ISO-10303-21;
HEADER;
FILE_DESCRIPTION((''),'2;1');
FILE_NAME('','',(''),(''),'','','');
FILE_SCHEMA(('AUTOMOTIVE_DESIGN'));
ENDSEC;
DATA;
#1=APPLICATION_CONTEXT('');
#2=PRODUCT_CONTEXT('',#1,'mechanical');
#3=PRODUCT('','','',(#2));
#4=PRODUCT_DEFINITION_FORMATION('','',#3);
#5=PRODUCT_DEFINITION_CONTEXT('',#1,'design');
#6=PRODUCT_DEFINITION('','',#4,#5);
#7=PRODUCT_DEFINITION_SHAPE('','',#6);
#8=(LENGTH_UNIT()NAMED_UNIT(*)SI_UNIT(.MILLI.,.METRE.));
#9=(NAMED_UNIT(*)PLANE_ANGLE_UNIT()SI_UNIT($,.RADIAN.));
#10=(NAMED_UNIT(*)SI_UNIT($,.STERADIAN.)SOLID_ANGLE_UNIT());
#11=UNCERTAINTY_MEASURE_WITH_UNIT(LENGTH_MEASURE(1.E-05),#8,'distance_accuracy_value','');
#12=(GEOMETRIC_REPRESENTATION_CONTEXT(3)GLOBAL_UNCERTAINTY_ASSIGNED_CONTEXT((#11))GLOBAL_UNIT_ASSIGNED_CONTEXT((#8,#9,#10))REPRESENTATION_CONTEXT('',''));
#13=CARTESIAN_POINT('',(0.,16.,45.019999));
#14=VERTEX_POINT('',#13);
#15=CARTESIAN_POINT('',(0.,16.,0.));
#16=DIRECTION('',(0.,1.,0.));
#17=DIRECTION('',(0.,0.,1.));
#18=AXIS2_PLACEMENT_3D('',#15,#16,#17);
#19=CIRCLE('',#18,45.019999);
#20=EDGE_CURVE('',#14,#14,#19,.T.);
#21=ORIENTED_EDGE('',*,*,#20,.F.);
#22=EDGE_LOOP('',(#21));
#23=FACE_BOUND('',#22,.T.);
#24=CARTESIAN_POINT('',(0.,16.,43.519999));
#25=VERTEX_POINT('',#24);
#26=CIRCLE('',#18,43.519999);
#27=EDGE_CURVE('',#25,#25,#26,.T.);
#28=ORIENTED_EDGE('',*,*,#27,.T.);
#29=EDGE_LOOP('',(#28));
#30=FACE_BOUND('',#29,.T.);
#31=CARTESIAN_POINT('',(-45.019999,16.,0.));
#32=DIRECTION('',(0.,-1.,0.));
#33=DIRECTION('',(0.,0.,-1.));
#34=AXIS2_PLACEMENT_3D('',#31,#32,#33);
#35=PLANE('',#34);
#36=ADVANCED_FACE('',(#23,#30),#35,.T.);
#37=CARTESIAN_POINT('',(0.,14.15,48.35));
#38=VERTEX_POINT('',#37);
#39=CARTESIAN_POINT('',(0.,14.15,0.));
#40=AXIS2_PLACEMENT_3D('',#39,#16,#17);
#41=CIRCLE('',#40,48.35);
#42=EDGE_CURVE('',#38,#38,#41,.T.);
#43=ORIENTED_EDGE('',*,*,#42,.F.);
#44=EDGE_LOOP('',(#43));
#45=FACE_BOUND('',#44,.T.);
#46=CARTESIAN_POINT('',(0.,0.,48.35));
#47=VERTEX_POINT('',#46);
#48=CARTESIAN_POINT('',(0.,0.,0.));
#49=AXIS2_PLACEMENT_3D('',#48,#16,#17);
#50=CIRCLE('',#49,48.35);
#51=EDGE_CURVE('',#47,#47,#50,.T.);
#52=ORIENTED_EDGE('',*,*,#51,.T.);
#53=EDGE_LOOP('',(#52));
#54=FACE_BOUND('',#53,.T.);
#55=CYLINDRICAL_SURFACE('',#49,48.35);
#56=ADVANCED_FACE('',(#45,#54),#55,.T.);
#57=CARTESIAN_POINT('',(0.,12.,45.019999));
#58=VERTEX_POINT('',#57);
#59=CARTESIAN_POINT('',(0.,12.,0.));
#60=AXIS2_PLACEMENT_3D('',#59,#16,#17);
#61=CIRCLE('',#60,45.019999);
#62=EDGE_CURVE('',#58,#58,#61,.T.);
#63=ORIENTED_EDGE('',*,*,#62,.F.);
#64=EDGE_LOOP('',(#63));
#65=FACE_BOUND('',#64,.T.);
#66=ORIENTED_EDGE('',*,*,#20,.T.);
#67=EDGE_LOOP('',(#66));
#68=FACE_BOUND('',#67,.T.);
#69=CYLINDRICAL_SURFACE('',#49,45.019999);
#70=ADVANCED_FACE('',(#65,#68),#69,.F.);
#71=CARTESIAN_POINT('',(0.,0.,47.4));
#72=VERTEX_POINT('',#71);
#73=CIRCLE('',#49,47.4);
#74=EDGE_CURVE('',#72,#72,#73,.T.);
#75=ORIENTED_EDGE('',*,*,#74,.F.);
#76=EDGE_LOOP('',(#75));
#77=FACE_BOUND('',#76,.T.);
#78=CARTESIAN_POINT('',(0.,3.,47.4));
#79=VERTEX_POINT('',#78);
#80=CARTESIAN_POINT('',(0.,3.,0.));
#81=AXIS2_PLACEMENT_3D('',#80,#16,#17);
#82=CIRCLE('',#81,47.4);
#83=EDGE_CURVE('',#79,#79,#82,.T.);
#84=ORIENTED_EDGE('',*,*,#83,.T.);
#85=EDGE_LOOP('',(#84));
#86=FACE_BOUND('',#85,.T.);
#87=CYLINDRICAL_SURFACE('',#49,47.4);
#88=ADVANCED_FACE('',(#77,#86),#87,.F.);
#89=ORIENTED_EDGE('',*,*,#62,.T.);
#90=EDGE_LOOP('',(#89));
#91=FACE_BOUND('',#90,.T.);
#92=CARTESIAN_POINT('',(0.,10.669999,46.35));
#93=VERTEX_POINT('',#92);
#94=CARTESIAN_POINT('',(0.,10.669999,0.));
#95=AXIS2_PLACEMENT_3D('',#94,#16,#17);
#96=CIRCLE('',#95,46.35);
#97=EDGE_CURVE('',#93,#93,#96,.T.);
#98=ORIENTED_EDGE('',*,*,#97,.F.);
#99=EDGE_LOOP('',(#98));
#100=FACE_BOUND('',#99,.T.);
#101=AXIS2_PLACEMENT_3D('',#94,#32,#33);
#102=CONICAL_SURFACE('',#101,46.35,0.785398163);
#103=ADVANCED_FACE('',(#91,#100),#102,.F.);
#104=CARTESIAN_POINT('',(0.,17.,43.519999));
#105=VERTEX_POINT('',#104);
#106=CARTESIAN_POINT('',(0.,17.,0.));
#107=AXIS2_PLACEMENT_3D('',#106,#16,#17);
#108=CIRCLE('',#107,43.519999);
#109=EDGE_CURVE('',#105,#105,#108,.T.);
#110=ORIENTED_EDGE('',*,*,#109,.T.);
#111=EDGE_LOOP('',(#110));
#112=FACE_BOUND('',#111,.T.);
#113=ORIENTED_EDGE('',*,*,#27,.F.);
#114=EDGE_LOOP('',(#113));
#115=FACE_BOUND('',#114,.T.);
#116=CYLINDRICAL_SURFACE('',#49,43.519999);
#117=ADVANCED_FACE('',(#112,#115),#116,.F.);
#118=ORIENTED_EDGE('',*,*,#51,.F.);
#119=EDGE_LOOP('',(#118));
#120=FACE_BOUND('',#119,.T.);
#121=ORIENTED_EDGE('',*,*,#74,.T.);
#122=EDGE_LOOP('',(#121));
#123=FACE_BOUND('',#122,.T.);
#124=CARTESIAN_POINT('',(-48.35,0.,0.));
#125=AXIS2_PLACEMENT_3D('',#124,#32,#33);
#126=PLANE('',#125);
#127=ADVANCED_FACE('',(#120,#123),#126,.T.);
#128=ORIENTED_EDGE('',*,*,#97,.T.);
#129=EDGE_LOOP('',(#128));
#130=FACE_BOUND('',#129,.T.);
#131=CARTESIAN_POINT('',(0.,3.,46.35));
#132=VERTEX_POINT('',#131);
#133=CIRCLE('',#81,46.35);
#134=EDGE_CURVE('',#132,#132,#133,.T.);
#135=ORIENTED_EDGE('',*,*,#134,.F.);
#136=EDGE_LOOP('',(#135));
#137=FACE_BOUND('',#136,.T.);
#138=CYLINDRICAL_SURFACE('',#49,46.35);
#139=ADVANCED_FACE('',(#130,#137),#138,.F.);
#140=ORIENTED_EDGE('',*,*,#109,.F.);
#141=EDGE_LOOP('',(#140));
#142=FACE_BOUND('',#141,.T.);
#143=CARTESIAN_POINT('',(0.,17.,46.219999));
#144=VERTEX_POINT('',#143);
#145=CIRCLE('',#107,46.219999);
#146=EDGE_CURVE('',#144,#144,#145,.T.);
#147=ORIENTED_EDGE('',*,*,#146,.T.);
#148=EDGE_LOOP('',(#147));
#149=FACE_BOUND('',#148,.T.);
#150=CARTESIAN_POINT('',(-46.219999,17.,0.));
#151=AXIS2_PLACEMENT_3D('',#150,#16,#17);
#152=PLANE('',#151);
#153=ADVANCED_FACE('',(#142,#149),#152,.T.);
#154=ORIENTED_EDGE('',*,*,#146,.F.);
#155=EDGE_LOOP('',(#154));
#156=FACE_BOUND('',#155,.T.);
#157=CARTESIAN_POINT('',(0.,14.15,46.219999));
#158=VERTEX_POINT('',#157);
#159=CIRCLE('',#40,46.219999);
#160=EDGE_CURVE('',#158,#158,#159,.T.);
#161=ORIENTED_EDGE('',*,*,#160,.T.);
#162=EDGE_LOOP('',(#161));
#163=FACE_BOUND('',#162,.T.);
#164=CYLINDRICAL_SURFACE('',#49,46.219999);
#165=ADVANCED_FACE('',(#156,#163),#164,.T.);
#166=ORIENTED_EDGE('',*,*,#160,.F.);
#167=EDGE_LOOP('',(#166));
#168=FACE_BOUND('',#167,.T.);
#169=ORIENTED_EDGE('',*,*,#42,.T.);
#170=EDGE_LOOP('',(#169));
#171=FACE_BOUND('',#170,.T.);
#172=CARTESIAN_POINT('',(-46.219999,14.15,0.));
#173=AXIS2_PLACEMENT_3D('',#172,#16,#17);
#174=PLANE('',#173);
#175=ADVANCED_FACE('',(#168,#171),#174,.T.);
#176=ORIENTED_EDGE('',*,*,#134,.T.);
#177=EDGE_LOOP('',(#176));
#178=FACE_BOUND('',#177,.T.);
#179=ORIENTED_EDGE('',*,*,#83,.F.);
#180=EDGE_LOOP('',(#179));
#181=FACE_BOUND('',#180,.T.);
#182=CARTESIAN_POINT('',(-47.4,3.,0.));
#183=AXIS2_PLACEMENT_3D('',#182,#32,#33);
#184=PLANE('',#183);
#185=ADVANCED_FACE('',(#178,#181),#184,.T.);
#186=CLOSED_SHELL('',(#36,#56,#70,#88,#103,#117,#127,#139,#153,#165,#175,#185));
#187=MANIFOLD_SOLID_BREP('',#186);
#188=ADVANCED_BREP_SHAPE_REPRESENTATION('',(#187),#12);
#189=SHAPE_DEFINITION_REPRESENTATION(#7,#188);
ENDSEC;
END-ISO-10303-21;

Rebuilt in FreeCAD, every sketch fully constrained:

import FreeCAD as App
import Part
import Sketcher
from FreeCAD import Vector
Q = App.Units.Quantity


def add_polygon(sketch, points):
    """Adds a closed chain of lines whose ends are joined by coincident constraints."""
    first, n = sketch.GeometryCount, len(points)
    for a, b in zip(points, points[1:] + points[:1]):
        sketch.addGeometry(Part.LineSegment(App.Vector(*a, 0), App.Vector(*b, 0)), False)
    for i in range(n):
        sketch.addConstraint(Sketcher.Constraint("Coincident", first + i, 2, first + (i + 1) % n, 1))

doc = App.newDocument("Part")
params = doc.addObject("Spreadsheet::Sheet", "Params")
for row, (alias, value) in enumerate([
    ("sketch1_height", "3 mm"),
    ("sketch1_height2", "4 mm"),
    ("sketch1_height3", "1 mm"),
    ("sketch1_width", "1.5 mm"),
    ("sketch1_width2", "2.7 mm"),
    ("revolution_angle", "360 deg"),
], start=1):
    params.set(f"A{row}", alias)
    params.set(f"B{row}", "=" + value)
    params.setAlias(f"B{row}", alias)

body = doc.addObject("PartDesign::Body", "Body")

sketch1 = doc.addObject("Sketcher::SketchObject", "Sketch")
body.addObject(sketch1)
sketch1.AttachmentSupport = (doc.XY_Plane, [""])
sketch1.MapMode = "FlatFace"
add_polygon(sketch1, [(-48.4, 14.2), (-48.4, 0), (-47.4, 0), (-47.4, 3), (-46.4, 3), (-46.4, 10.7), (-45, 12), (-45, 16), (-43.5, 16), (-43.5, 17), (-46.2, 17), (-46.2, 14.2)])
sketch1.addConstraint(Sketcher.Constraint("Vertical", 0))
sketch1.addConstraint(Sketcher.Constraint("Horizontal", 1))
sketch1.addConstraint(Sketcher.Constraint("Vertical", 2))
sketch1.addConstraint(Sketcher.Constraint("Horizontal", 3))
sketch1.addConstraint(Sketcher.Constraint("Vertical", 4))
sketch1.addConstraint(Sketcher.Constraint("Vertical", 6))
sketch1.addConstraint(Sketcher.Constraint("Horizontal", 7))
sketch1.addConstraint(Sketcher.Constraint("Vertical", 8))
sketch1.addConstraint(Sketcher.Constraint("Horizontal", 9))
sketch1.addConstraint(Sketcher.Constraint("Vertical", 10))
sketch1.addConstraint(Sketcher.Constraint("Horizontal", 11))
sketch1.addConstraint(Sketcher.Constraint("PointOnObject", 0, 2, -1))
sketch1.addConstraint(Sketcher.Constraint("DistanceY", 2, 1, 2, 2, Q("3 mm")))
sketch1.addConstraint(Sketcher.Constraint("DistanceY", 6, 1, 6, 2, Q("4 mm")))
sketch1.addConstraint(Sketcher.Constraint("DistanceY", 8, 1, 8, 2, Q("1 mm")))
sketch1.addConstraint(Sketcher.Constraint("Angle", 5, Q("45 deg")))
sketch1.addConstraint(Sketcher.Constraint("DistanceX", 7, 1, 7, 2, Q("1.5 mm")))
sketch1.addConstraint(Sketcher.Constraint("DistanceX", 9, 2, 9, 1, Q("2.7 mm")))
sketch1.addConstraint(Sketcher.Constraint("DistanceY", -1, 1, 5, 2, Q("12 mm")))
sketch1.addConstraint(Sketcher.Constraint("DistanceX", 0, 2, 3, 2, Q("2 mm")))
sketch1.addConstraint(Sketcher.Constraint("DistanceX", 1, 1, 1, 2, Q("0.95 mm")))
sketch1.addConstraint(Sketcher.Constraint("DistanceX", 11, 2, 11, 1, Q("2.130001 mm")))
sketch1.addConstraint(Sketcher.Constraint("DistanceY", 0, 2, 0, 1, Q("14.15 mm")))
sketch1.addConstraint(Sketcher.Constraint("DistanceX", 1, 2, -1, 1, Q("47.4 mm")))
sketch1.setExpression("Constraints[24]", "Params.sketch1_height")
sketch1.setExpression("Constraints[25]", "Params.sketch1_height2")
sketch1.setExpression("Constraints[26]", "Params.sketch1_height3")
sketch1.setExpression("Constraints[28]", "Params.sketch1_width")
sketch1.setExpression("Constraints[29]", "Params.sketch1_width2")
revolution = doc.addObject("PartDesign::Revolution", "Revolution")
body.addObject(revolution)
revolution.Profile = sketch1
revolution.ReferenceAxis = (sketch1, ["V_Axis"])
revolution.setExpression("Angle", "Params.revolution_angle")

doc.recompute()
